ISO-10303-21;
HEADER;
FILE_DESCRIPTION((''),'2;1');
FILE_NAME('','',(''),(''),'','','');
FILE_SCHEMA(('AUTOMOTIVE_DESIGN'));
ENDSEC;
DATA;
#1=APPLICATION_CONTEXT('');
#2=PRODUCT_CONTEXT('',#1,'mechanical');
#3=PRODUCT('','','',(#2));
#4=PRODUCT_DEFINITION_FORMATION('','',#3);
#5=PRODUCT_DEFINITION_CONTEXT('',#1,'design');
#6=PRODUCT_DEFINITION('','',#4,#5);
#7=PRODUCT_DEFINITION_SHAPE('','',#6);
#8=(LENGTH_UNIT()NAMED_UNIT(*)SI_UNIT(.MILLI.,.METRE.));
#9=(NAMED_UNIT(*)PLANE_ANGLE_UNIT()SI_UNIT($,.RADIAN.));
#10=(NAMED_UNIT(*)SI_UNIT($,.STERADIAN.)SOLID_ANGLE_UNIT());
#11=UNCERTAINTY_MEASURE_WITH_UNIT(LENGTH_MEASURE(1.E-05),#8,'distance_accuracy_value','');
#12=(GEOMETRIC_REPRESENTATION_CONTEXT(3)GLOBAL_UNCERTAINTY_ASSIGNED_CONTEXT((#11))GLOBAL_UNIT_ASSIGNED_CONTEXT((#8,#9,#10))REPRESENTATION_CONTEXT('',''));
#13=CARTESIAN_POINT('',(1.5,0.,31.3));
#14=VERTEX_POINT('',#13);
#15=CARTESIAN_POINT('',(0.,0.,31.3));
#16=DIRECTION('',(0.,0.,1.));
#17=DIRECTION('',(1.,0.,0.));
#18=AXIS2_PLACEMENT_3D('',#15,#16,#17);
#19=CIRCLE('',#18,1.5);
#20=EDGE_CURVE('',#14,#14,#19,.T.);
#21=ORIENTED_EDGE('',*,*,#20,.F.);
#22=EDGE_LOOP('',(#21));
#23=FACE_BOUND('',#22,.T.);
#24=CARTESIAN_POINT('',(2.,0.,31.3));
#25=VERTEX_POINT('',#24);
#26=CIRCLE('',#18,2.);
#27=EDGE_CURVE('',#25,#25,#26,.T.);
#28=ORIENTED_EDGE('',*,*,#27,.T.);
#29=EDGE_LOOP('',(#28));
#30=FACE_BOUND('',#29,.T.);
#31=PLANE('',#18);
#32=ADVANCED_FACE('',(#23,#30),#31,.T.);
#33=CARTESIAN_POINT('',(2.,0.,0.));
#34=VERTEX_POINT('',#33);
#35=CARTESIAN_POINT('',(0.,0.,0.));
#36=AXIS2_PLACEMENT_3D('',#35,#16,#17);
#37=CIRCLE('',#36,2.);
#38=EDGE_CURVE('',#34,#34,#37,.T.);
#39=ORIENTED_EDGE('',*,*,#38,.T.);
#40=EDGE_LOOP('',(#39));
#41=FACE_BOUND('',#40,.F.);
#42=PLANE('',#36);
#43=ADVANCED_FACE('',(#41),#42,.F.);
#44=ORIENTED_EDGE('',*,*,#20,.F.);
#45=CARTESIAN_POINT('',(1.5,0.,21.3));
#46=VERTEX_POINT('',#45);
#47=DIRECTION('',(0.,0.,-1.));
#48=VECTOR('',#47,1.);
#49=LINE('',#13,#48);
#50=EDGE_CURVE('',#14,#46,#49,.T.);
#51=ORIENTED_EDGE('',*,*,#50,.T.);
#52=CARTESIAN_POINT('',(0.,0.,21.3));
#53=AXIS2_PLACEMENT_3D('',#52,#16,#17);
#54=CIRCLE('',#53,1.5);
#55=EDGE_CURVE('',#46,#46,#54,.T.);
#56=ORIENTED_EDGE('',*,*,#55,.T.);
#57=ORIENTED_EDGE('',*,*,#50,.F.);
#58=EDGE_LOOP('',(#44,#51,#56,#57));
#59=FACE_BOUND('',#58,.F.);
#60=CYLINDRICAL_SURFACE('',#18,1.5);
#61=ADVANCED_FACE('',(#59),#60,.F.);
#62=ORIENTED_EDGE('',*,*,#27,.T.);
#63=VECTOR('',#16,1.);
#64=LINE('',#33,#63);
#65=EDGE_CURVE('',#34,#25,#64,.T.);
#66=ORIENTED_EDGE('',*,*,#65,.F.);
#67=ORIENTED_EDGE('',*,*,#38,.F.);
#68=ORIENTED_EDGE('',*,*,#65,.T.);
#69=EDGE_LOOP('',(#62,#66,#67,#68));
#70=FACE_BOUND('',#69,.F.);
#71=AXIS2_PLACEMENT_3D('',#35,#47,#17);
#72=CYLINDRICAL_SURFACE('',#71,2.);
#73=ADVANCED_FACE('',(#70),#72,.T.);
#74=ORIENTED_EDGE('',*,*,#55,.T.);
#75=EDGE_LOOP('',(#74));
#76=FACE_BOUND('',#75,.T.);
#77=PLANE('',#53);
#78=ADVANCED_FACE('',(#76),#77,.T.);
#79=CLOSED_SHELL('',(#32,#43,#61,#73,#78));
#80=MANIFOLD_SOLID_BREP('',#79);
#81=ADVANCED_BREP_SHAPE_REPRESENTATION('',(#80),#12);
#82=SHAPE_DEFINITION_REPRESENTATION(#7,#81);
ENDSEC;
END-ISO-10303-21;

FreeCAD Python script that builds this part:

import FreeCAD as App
import Part
import Sketcher

V = App.Vector

doc = App.newDocument("Part")
body = doc.addObject("PartDesign::Body", "Body")

sketch1 = body.newObject("Sketcher::SketchObject", "Sketch")
sketch1.AttachmentSupport = (doc.getObject("XY_Plane"), [""])
sketch1.MapMode = "FlatFace"
sketch1.addGeometry(Part.Circle(V(0, 0, 0), V(0, 0, 1), 2), False)
sketch1.addConstraint(Sketcher.Constraint("Coincident", 0, 3, -1, 1))
sketch1.addConstraint(Sketcher.Constraint("Diameter", 0, 4.0))
pad1 = body.newObject("PartDesign::Pad", "Pad")
pad1.Profile = sketch1
pad1.Length = 31.3

sketch2 = body.newObject("Sketcher::SketchObject", "Sketch001")
sketch2.AttachmentSupport = (doc.getObject("XY_Plane"), [""])
sketch2.MapMode = "FlatFace"
sketch2.AttachmentOffset = App.Placement(V(0, 0, 31.3), App.Rotation())
sketch2.addGeometry(Part.Circle(V(0, 0, 0), V(0, 0, 1), 1.5), False)
sketch2.addConstraint(Sketcher.Constraint("Coincident", 0, 3, -1, 1))
sketch2.addConstraint(Sketcher.Constraint("Diameter", 0, 3.0))
pocket1 = body.newObject("PartDesign::Pocket", "Pocket")
pocket1.Profile = sketch2
pocket1.Length = 10

doc.recompute()
